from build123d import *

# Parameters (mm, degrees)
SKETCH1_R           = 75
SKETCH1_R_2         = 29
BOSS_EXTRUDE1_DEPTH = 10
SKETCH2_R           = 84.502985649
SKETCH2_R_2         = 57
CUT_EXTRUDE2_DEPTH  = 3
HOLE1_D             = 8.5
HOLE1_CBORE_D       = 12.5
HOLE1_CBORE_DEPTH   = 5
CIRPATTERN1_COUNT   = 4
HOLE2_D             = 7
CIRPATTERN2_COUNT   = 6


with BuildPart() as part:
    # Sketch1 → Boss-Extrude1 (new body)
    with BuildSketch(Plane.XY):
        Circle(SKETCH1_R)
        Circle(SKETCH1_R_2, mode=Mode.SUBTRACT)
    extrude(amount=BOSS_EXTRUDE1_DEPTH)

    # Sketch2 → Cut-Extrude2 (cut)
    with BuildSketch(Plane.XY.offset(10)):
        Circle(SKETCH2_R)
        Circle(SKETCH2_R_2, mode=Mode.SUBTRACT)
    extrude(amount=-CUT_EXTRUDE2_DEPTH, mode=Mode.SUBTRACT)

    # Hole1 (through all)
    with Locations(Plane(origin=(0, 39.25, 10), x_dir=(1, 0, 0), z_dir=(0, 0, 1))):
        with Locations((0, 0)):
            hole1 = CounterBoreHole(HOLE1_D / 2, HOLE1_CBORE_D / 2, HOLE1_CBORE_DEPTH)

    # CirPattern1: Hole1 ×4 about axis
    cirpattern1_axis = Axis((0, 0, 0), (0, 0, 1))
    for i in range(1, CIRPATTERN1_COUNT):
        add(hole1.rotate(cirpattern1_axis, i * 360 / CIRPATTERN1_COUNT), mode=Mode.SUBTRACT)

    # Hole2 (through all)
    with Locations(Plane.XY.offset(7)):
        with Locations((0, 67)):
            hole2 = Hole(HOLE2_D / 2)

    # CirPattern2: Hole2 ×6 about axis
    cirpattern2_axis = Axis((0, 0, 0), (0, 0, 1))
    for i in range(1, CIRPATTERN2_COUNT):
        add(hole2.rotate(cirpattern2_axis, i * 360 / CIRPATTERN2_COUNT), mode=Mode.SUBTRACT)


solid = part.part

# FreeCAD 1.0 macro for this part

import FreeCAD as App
import Part
import Sketcher
Q = App.Units.Quantity

doc = App.newDocument("Part")
body = doc.addObject("PartDesign::Body", "Body")

# Sketch on XY plane
sketch1 = body.newObject("Sketcher::SketchObject", "Sketch")
sketch1.AttachmentSupport = (doc.getObject("XY_Plane"), [""])
sketch1.MapMode = "FlatFace"
sketch1.addGeometry([
    Part.Circle(App.Vector(0, 0, 0), App.Vector(0, 0, 1), 75),
    Part.Circle(App.Vector(0, 0, 0), App.Vector(0, 0, 1), 29),
], False)
sketch1.addConstraint([
    Sketcher.Constraint("Coincident", 0, 3, -1, 1),
    Sketcher.Constraint("Coincident", 1, 3, -1, 1),
    Sketcher.Constraint("Diameter", 0, Q("150 mm")),
    Sketcher.Constraint("Diameter", 1, Q("58 mm")),
])
pad1 = body.newObject("PartDesign::Pad", "Pad")
pad1.Profile = sketch1
pad1.Length = 10

# Sketch on XY plane
sketch2 = body.newObject("Sketcher::SketchObject", "Sketch001")
sketch2.AttachmentSupport = (doc.getObject("XY_Plane"), [""])
sketch2.MapMode = "FlatFace"
sketch2.AttachmentOffset = App.Placement(App.Vector(0, 0, 10), App.Rotation())
sketch2.addGeometry([
    Part.Circle(App.Vector(0, 0, 0), App.Vector(0, 0, 1), 85),
    Part.Circle(App.Vector(0, 0, 0), App.Vector(0, 0, 1), 57),
], False)
sketch2.addConstraint([
    Sketcher.Constraint("Coincident", 0, 3, -1, 1),
    Sketcher.Constraint("Coincident", 1, 3, -1, 1),
    Sketcher.Constraint("Diameter", 1, Q("114 mm")),
    Sketcher.Constraint("Diameter", 0, Q("169.005971 mm")),
])
pocket1 = body.newObject("PartDesign::Pocket", "Pocket")
pocket1.Profile = sketch2
pocket1.Length = 3

# Sketch on XY plane
sketch3 = body.newObject("Sketcher::SketchObject", "Sketch002")
sketch3.AttachmentSupport = (doc.getObject("XY_Plane"), [""])
sketch3.MapMode = "FlatFace"
sketch3.AttachmentOffset = App.Placement(App.Vector(0, 0, 10), App.Rotation())
sketch3.addGeometry(Part.Circle(App.Vector(0, 39.2, 0), App.Vector(0, 0, 1), 4.2), False)
sketch3.addConstraint([
    Sketcher.Constraint("PointOnObject", 0, 3, -2),
    Sketcher.Constraint("Diameter", 0, Q("8.5 mm")),
    Sketcher.Constraint("DistanceY", -1, 1, 0, 3, Q("39.25 mm")),
])
doc.recompute()
hole = body.newObject("PartDesign::Hole", "Hole")
hole.Profile = sketch3
hole.ThreadType = "None"
hole.Diameter = 8.5
hole.DepthType = "ThroughAll"
hole.HoleCutType = "Counterbore"
hole.HoleCutDiameter = 12.5
hole.HoleCutDepth = 5
doc.recompute()

polarpattern = body.newObject("PartDesign::PolarPattern", "PolarPattern")
polarpattern.Originals = [hole]
polarpattern.Axis = (doc.getObject("Z_Axis"), [""])
polarpattern.Angle = 360
polarpattern.Occurrences = 4
body.Tip = polarpattern

# Sketch on XY plane
sketch4 = body.newObject("Sketcher::SketchObject", "Sketch003")
sketch4.AttachmentSupport = (doc.getObject("XY_Plane"), [""])
sketch4.MapMode = "FlatFace"
sketch4.AttachmentOffset = App.Placement(App.Vector(0, 0, 7), App.Rotation())
sketch4.addGeometry(Part.Circle(App.Vector(0, 67, 0), App.Vector(0, 0, 1), 3.5), False)
sketch4.addConstraint([
    Sketcher.Constraint("PointOnObject", 0, 3, -2),
    Sketcher.Constraint("Diameter", 0, Q("7 mm")),
    Sketcher.Constraint("DistanceY", -1, 1, 0, 3, Q("67 mm")),
])
doc.recompute()
hole2 = body.newObject("PartDesign::Hole", "Hole001")
hole2.Profile = sketch4
hole2.ThreadType = "None"
hole2.Diameter = 7
hole2.DepthType = "ThroughAll"
doc.recompute()

polarpattern2 = body.newObject("PartDesign::PolarPattern", "PolarPattern001")
polarpattern2.Originals = [hole2]
polarpattern2.Axis = (doc.getObject("Z_Axis"), [""])
polarpattern2.Angle = 360
polarpattern2.Occurrences = 6
body.Tip = polarpattern2

doc.recompute()
